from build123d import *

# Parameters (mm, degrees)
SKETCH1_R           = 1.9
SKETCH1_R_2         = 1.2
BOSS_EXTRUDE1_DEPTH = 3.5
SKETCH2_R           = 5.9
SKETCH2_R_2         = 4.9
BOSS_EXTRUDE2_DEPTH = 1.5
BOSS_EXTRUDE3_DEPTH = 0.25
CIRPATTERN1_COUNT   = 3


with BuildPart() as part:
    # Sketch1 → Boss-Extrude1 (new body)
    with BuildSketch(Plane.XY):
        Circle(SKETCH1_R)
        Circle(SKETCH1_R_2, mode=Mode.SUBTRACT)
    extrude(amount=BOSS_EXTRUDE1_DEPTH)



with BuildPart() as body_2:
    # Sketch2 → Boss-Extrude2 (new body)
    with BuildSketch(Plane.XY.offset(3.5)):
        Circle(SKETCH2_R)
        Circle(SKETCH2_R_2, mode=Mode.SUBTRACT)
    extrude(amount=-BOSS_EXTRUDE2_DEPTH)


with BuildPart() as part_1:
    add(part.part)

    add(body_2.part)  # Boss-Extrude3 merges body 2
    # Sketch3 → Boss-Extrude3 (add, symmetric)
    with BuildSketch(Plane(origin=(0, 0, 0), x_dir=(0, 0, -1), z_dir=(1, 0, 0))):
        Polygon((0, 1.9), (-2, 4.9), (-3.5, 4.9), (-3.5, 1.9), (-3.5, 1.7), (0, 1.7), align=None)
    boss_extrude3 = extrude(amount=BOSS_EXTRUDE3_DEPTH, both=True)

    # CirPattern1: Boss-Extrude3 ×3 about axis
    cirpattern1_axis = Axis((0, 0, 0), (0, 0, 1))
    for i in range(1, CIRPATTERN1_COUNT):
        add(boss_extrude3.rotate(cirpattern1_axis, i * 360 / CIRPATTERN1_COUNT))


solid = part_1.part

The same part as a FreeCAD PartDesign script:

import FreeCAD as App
import Part
import Sketcher


def add_polygon(sketch, points):
    """Adds a closed chain of lines whose ends are joined by coincident constraints."""
    first, n = sketch.GeometryCount, len(points)
    for a, b in zip(points, points[1:] + points[:1]):
        sketch.addGeometry(Part.LineSegment(App.Vector(*a, 0), App.Vector(*b, 0)), False)
    for i in range(n):
        sketch.addConstraint(Sketcher.Constraint("Coincident", first + i, 2, first + (i + 1) % n, 1))

doc = App.newDocument("Part")
params = doc.addObject("Spreadsheet::Sheet", "Params")
for row, (alias, value) in enumerate([
    ("sketch1_diameter", "3.8 mm"),
    ("sketch1_diameter2", "2.4 mm"),
    ("pad1_length", "3.5 mm"),
    ("sketch2_diameter", "11.8 mm"),
    ("sketch2_diameter2", "9.8 mm"),
    ("pad2_length", "1.5 mm"),
    ("sketch3_width", "3.2 mm"),
    ("sketch3_width2", "0.2 mm"),
    ("sketch3_height", "1.5 mm"),
    ("sketch3_height2", "3.5 mm"),
    ("pad3_length", "0.5 mm"),
], start=1):
    params.set(f"A{row}", alias)
    params.set(f"B{row}", "=" + value)
    params.setAlias(f"B{row}", alias)

body = doc.addObject("PartDesign::Body", "Body")

sketch1 = doc.addObject("Sketcher::SketchObject", "Sketch")
body.addObject(sketch1)
sketch1.AttachmentSupport = (doc.XY_Plane, [""])
sketch1.MapMode = "FlatFace"
sketch1.addGeometry([
    Part.Circle(App.Vector(0, 0, 0), App.Vector(0, 0, 1), 1.9),
    Part.Circle(App.Vector(0, 0, 0), App.Vector(0, 0, 1), 1.2),
], False)
sketch1.addConstraint([
    Sketcher.Constraint("Coincident", 0, 3, -1, 1),
    Sketcher.Constraint("Coincident", 1, 3, -1, 1),
    Sketcher.Constraint("Diameter", 0, 3.8),
    Sketcher.Constraint("Diameter", 1, 2.4),
])
sketch1.setExpression("Constraints[2]", "Params.sketch1_diameter")
sketch1.setExpression("Constraints[3]", "Params.sketch1_diameter2")
pad1 = doc.addObject("PartDesign::Pad", "Pad")
body.addObject(pad1)
pad1.Profile = sketch1
pad1.setExpression("Length", "Params.pad1_length")
body2 = doc.addObject("PartDesign::Body", "Body001")

sketch2 = doc.addObject("Sketcher::SketchObject", "Sketch001")
body2.addObject(sketch2)
sketch2.AttachmentSupport = (doc.getObject("XY_Plane001"), [""])
sketch2.MapMode = "FlatFace"
sketch2.AttachmentOffset = App.Placement(App.Vector(0, 0, 3.5), App.Rotation())
sketch2.addGeometry([
    Part.Circle(App.Vector(0, 0, 0), App.Vector(0, 0, 1), 5.9),
    Part.Circle(App.Vector(0, 0, 0), App.Vector(0, 0, 1), 4.9),
], False)
sketch2.addConstraint([
    Sketcher.Constraint("Coincident", 0, 3, -1, 1),
    Sketcher.Constraint("Coincident", 1, 3, -1, 1),
    Sketcher.Constraint("Diameter", 0, 11.8),
    Sketcher.Constraint("Diameter", 1, 9.8),
])
sketch2.setExpression("Constraints[2]", "Params.sketch2_diameter")
sketch2.setExpression("Constraints[3]", "Params.sketch2_diameter2")
pad2 = doc.addObject("PartDesign::Pad", "Pad001")
body2.addObject(pad2)
pad2.Profile = sketch2
pad2.setExpression("Length", "Params.pad2_length")
pad2.Reversed = True
body.AllowCompound = True
doc.recompute()

boolean = doc.addObject("PartDesign::Boolean", "Boolean")
body.addObject(boolean)
boolean.Type = "Fuse"
boolean.addObjects([body2])

sketch3 = doc.addObject("Sketcher::SketchObject", "Sketch002")
body.addObject(sketch3)
sketch3.AttachmentSupport = (doc.YZ_Plane, [""])
sketch3.MapMode = "FlatFace"
add_polygon(sketch3, [(1.9, 0), (4.9, 2), (4.9, 3.5), (1.7, 3.5), (1.7, 0)])
sketch3.addConstraint([
    Sketcher.Constraint("Vertical", 1),
    Sketcher.Constraint("Horizontal", 2),
    Sketcher.Constraint("Vertical", 3),
    Sketcher.Constraint("Horizontal", 4),
    Sketcher.Constraint("PointOnObject", 3, 2, -1),
    Sketcher.Constraint("DistanceX", 2, 2, 2, 1, 3.2),
    Sketcher.Constraint("DistanceX", 4, 1, 4, 2, 0.2),
    Sketcher.Constraint("DistanceY", 1, 1, 1, 2, 1.5),
    Sketcher.Constraint("DistanceY", 3, 2, 3, 1, 3.5),
    Sketcher.Constraint("DistanceX", -1, 1, 0, 2, 4.9),
])
sketch3.setExpression("Constraints[10]", "Params.sketch3_width")
sketch3.setExpression("Constraints[11]", "Params.sketch3_width2")
sketch3.setExpression("Constraints[12]", "Params.sketch3_height")
sketch3.setExpression("Constraints[13]", "Params.sketch3_height2")
pad3 = doc.addObject("PartDesign::Pad", "Pad002")
body.addObject(pad3)
pad3.Profile = sketch3
pad3.setExpression("Length", "Params.pad3_length")
pad3.Midplane = True
doc.recompute()

polarpattern = doc.addObject("PartDesign::PolarPattern", "PolarPattern")
body.addObject(polarpattern)
polarpattern.Originals = [pad3]
polarpattern.Axis = (doc.Z_Axis, [""])
polarpattern.Angle = 360
polarpattern.Occurrences = 3
body.Tip = polarpattern

doc.recompute()
